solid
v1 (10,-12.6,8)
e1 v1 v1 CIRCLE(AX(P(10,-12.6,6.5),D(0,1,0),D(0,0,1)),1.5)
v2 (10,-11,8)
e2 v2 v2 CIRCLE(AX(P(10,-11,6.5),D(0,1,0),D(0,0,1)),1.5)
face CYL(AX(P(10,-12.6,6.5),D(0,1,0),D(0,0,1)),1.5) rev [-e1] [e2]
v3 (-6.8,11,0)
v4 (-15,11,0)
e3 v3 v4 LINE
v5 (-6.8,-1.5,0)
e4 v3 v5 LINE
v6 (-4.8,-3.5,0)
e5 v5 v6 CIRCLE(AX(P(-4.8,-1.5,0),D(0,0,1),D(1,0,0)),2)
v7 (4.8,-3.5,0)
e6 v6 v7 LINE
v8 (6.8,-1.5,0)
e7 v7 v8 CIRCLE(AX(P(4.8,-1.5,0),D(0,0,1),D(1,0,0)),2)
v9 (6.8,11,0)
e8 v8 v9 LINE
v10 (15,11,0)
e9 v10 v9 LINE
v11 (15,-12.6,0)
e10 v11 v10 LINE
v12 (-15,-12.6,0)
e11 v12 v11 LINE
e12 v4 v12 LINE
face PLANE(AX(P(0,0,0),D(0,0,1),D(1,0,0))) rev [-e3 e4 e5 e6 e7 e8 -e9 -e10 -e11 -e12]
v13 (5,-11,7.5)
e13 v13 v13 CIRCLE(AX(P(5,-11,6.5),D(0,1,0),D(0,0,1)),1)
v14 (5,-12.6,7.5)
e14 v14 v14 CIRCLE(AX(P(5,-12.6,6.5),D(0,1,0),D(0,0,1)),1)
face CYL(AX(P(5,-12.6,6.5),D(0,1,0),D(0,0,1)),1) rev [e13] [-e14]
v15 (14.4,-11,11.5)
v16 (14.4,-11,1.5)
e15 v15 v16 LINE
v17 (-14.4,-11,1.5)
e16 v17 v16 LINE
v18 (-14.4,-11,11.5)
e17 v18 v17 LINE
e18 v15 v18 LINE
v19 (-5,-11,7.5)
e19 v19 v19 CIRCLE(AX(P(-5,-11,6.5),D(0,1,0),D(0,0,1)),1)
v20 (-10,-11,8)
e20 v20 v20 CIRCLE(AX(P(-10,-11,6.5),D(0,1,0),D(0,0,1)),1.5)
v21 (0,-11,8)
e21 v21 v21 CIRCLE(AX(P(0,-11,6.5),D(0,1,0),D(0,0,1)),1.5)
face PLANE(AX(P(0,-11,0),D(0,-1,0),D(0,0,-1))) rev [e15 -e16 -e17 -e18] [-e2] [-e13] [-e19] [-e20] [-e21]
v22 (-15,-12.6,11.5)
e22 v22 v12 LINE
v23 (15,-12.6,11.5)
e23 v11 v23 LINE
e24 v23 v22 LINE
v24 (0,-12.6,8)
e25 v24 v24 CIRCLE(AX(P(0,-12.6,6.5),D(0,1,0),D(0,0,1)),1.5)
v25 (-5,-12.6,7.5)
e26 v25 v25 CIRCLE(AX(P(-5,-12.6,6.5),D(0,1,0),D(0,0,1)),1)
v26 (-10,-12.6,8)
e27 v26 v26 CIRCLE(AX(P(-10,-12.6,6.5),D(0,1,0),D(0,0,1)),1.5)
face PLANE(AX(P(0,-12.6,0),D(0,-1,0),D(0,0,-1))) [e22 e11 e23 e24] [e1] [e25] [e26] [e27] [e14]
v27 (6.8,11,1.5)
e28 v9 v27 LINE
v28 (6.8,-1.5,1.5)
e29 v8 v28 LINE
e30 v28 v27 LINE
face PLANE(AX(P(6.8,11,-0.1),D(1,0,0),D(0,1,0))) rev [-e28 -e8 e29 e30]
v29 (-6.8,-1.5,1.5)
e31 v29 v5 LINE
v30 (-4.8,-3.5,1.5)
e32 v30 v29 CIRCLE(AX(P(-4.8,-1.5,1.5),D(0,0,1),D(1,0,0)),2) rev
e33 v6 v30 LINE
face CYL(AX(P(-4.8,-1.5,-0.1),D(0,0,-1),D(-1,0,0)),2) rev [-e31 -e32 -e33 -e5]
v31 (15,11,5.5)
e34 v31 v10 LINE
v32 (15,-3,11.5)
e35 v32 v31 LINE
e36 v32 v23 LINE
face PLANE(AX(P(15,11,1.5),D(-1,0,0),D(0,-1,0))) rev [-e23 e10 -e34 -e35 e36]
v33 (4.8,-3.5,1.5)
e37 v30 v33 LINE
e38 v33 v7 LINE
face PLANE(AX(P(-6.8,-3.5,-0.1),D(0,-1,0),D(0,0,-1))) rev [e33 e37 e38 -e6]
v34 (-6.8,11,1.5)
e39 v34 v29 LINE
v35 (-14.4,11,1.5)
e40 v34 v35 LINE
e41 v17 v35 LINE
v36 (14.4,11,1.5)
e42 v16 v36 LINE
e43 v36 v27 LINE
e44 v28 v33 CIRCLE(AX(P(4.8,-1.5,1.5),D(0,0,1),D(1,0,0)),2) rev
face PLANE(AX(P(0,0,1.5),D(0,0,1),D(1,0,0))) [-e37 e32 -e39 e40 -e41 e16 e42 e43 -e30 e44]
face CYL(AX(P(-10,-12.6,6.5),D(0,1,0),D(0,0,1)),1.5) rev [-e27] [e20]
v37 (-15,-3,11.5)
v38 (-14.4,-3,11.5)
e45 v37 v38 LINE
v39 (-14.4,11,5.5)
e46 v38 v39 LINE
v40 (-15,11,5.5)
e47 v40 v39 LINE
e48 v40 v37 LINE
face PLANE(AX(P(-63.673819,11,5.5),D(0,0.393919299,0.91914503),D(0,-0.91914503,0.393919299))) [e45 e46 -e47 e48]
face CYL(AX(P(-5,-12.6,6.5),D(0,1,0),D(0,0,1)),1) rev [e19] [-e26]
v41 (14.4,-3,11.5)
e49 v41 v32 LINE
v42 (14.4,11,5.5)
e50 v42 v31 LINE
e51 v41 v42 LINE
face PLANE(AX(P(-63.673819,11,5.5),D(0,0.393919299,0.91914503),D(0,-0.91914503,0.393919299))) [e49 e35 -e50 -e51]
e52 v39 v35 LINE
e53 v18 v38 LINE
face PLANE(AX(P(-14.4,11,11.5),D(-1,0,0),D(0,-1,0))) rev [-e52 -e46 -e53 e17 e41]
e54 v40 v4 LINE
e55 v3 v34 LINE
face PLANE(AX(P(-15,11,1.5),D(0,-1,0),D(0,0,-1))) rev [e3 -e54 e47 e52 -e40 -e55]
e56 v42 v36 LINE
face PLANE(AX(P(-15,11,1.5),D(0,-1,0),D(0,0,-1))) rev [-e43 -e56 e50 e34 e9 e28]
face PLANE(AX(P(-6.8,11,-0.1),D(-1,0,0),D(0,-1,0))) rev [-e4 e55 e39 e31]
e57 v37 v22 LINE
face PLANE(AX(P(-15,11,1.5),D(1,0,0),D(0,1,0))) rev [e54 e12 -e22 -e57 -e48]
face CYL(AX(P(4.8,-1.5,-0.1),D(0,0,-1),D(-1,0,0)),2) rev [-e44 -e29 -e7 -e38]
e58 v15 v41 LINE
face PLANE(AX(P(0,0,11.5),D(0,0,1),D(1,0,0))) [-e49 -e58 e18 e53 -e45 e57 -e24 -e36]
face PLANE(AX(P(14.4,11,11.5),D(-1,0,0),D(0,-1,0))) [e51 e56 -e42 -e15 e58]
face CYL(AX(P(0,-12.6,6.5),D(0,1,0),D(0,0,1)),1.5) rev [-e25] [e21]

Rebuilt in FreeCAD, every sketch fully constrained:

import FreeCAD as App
import Part
import Sketcher
Q = App.Units.Quantity


def edges_at(feature, points):
    """Names of the edges that pass closest to the given points."""
    edges = feature.Shape.Edges
    near = lambda p: min(range(len(edges)), key=lambda i: edges[i].distToShape(Part.Vertex(*p))[0])
    return sorted({f"Edge{near(p) + 1}" for p in points})

doc = App.newDocument("Part")
body = doc.addObject("PartDesign::Body", "Body")

sketch1 = doc.addObject("Sketcher::SketchObject", "Sketch")
body.addObject(sketch1)
sketch1.AttachmentSupport = (doc.XY_Plane, [""])
sketch1.MapMode = "FlatFace"
sketch1.addGeometry([
    Part.LineSegment(App.Vector(-15, 11, 0), App.Vector(-15, -11, 0)),
    Part.LineSegment(App.Vector(-15, -11, 0), App.Vector(15, -11, 0)),
    Part.LineSegment(App.Vector(15, -11, 0), App.Vector(15, 11, 0)),
    Part.LineSegment(App.Vector(15, 11, 0), App.Vector(-15, 11, 0)),
], False)
sketch1.addConstraint([
    Sketcher.Constraint("Coincident", 0, 2, 1, 1),
    Sketcher.Constraint("Coincident", 1, 2, 2, 1),
    Sketcher.Constraint("Coincident", 2, 2, 3, 1),
    Sketcher.Constraint("Coincident", 3, 2, 0, 1),
    Sketcher.Constraint("Vertical", 0),
    Sketcher.Constraint("Horizontal", 1),
    Sketcher.Constraint("Vertical", 2),
    Sketcher.Constraint("Horizontal", 3),
    Sketcher.Constraint("Symmetric", 0, 2, 2, 2, -1, 1),
    Sketcher.Constraint("DistanceX", 1, 1, 1, 2, Q("30 mm")),
    Sketcher.Constraint("DistanceY", 0, 2, 0, 1, Q("22 mm")),
])
pad1 = doc.addObject("PartDesign::Pad", "Pad")
body.addObject(pad1)
pad1.Profile = sketch1
pad1.Length = 1.5

sketch2 = doc.addObject("Sketcher::SketchObject", "Sketch001")
body.addObject(sketch2)
sketch2.AttachmentSupport = (doc.XY_Plane, [""])
sketch2.MapMode = "FlatFace"
sketch2.AttachmentOffset = App.Placement(App.Vector(0, 0, 1.5), App.Rotation())
sketch2.addGeometry([
    Part.LineSegment(App.Vector(-15, 11, 0), App.Vector(-15, -11, 0)),
    Part.LineSegment(App.Vector(-15, -11, 0), App.Vector(-14.4, -11, 0)),
    Part.LineSegment(App.Vector(-14.4, -11, 0), App.Vector(-14.4, 11, 0)),
    Part.LineSegment(App.Vector(-14.4, 11, 0), App.Vector(-15, 11, 0)),
], False)
sketch2.addConstraint([
    Sketcher.Constraint("Coincident", 0, 2, 1, 1),
    Sketcher.Constraint("Coincident", 1, 2, 2, 1),
    Sketcher.Constraint("Coincident", 2, 2, 3, 1),
    Sketcher.Constraint("Coincident", 3, 2, 0, 1),
    Sketcher.Constraint("Vertical", 0),
    Sketcher.Constraint("Horizontal", 1),
    Sketcher.Constraint("Vertical", 2),
    Sketcher.Constraint("Horizontal", 3),
    Sketcher.Constraint("DistanceY", 0, 2, 0, 1, Q("22 mm")),
    Sketcher.Constraint("DistanceX", 1, 1, 1, 2, Q("0.6 mm")),
    Sketcher.Constraint("DistanceX", 0, 2, -1, 1, Q("15 mm")),
    Sketcher.Constraint("DistanceY", 0, 2, -1, 1, Q("11 mm")),
])
pad2 = doc.addObject("PartDesign::Pad", "Pad001")
body.addObject(pad2)
pad2.Profile = sketch2
pad2.Length = 10
doc.recompute()

mirrored = doc.addObject("PartDesign::Mirrored", "Mirrored")
body.addObject(mirrored)
mirrored.Originals = [pad2]
mirrored.MirrorPlane = (doc.YZ_Plane, [""])
body.Tip = mirrored

sketch3 = doc.addObject("Sketcher::SketchObject", "Sketch002")
body.addObject(sketch3)
sketch3.AttachmentSupport = (doc.YZ_Plane, [""])
sketch3.MapMode = "FlatFace"
sketch3.AttachmentOffset = App.Placement(App.Vector(0, 0, -15), App.Rotation())
sketch3.addGeometry([
    Part.LineSegment(App.Vector(62, -16, 0), App.Vector(11, 6, 0)),
    Part.LineSegment(App.Vector(11, 6, 0), App.Vector(-3, 12, 0)),
    Part.LineSegment(App.Vector(-3, 12, 0), App.Vector(-54, 33, 0)),
    Part.LineSegment(App.Vector(-54, 33, 0), App.Vector(-10, 136, 0)),
    Part.LineSegment(App.Vector(-10, 136, 0), App.Vector(106, 86, 0)),
    Part.LineSegment(App.Vector(106, 86, 0), App.Vector(62, -16, 0)),
], False)
sketch3.addConstraint([
    Sketcher.Constraint("Coincident", 0, 2, 1, 1),
    Sketcher.Constraint("Coincident", 1, 2, 2, 1),
    Sketcher.Constraint("Coincident", 2, 2, 3, 1),
    Sketcher.Constraint("Coincident", 3, 2, 4, 1),
    Sketcher.Constraint("Coincident", 4, 2, 5, 1),
    Sketcher.Constraint("Coincident", 5, 2, 0, 1),
    Sketcher.Constraint("Parallel", 0, 1),
    Sketcher.Constraint("Parallel", 1, 2),
    Sketcher.Constraint("Perpendicular", 2, 3),
    Sketcher.Constraint("Perpendicular", 3, 4),
    Sketcher.Constraint("Perpendicular", 4, 5),
    Sketcher.Constraint("Equal", 0, 2),
    Sketcher.Constraint("DistanceX", -1, 1, 0, 2, Q("11 mm")),
    Sketcher.Constraint("DistanceX", 1, 2, -1, 1, Q("3 mm")),
    Sketcher.Constraint("DistanceY", 0, 2, 1, 2, Q("6 mm")),
    Sketcher.Constraint("DistanceY", -1, 1, 0, 2, Q("5.5 mm")),
    Sketcher.Constraint("Distance", 4, Q("126.44558 mm")),
    Sketcher.Constraint("DistanceX", 3, 2, -1, 1, Q("10.301559 mm")),
])
pocket1 = doc.addObject("PartDesign::Pocket", "Pocket")
body.addObject(pocket1)
pocket1.Profile = sketch3
pocket1.Type = "ThroughAll"
pocket1.Midplane = True

sketch4 = doc.addObject("Sketcher::SketchObject", "Sketch003")
body.addObject(sketch4)
sketch4.AttachmentSupport = (doc.XZ_Plane, [""])
sketch4.MapMode = "FlatFace"
sketch4.AttachmentOffset = App.Placement(App.Vector(0, 0, 11), App.Rotation())
sketch4.addGeometry([
    Part.LineSegment(App.Vector(-15, 12, 0), App.Vector(-15, 0, 0)),
    Part.LineSegment(App.Vector(-15, 0, 0), App.Vector(15, 0, 0)),
    Part.LineSegment(App.Vector(15, 0, 0), App.Vector(15, 12, 0)),
    Part.LineSegment(App.Vector(15, 12, 0), App.Vector(-15, 12, 0)),
], False)
sketch4.addConstraint([
    Sketcher.Constraint("Coincident", 0, 2, 1, 1),
    Sketcher.Constraint("Coincident", 1, 2, 2, 1),
    Sketcher.Constraint("Coincident", 2, 2, 3, 1),
    Sketcher.Constraint("Coincident", 3, 2, 0, 1),
    Sketcher.Constraint("Vertical", 0),
    Sketcher.Constraint("Horizontal", 1),
    Sketcher.Constraint("Vertical", 2),
    Sketcher.Constraint("Horizontal", 3),
    Sketcher.Constraint("Symmetric", 0, 2, 1, 2, -1, 1),
    Sketcher.Constraint("DistanceX", 1, 1, 1, 2, Q("30 mm")),
    Sketcher.Constraint("DistanceY", 0, 2, 0, 1, Q("11.5 mm")),
])
pad3 = doc.addObject("PartDesign::Pad", "Pad002")
body.addObject(pad3)
pad3.Profile = sketch4
pad3.Length = 1.6

sketch5 = doc.addObject("Sketcher::SketchObject", "Sketch004")
body.addObject(sketch5)
sketch5.AttachmentSupport = (doc.XY_Plane, [""])
sketch5.MapMode = "FlatFace"
sketch5.AttachmentOffset = App.Placement(App.Vector(0, 0, 1.5), App.Rotation())
sketch5.addGeometry([
    Part.LineSegment(App.Vector(-7, 11, 0), App.Vector(-7, -4, 0)),
    Part.LineSegment(App.Vector(-7, -4, 0), App.Vector(7, -4, 0)),
    Part.LineSegment(App.Vector(7, -4, 0), App.Vector(7, 11, 0)),
    Part.LineSegment(App.Vector(7, 11, 0), App.Vector(-7, 11, 0)),
], False)
sketch5.addConstraint([
    Sketcher.Constraint("Coincident", 0, 2, 1, 1),
    Sketcher.Constraint("Coincident", 1, 2, 2, 1),
    Sketcher.Constraint("Coincident", 2, 2, 3, 1),
    Sketcher.Constraint("Coincident", 3, 2, 0, 1),
    Sketcher.Constraint("Vertical", 0),
    Sketcher.Constraint("Horizontal", 1),
    Sketcher.Constraint("Vertical", 2),
    Sketcher.Constraint("Horizontal", 3),
    Sketcher.Constraint("DistanceX", 1, 1, 1, 2, Q("13.6 mm")),
    Sketcher.Constraint("DistanceY", 0, 2, 0, 1, Q("14.5 mm")),
    Sketcher.Constraint("DistanceY", -1, 1, 2, 2, Q("11 mm")),
    Sketcher.Constraint("DistanceX", 0, 2, -1, 1, Q("6.8 mm")),
])
pocket2 = doc.addObject("PartDesign::Pocket", "Pocket001")
body.addObject(pocket2)
pocket2.Profile = sketch5
pocket2.Length = 1.6
doc.recompute()

fillet = doc.addObject("PartDesign::Fillet", "Fillet")
body.addObject(fillet)
fillet.Base = (pocket2, edges_at(pocket2, [(-6.8, -3.5, 0.75), (6.8, -3.5, 0.75)]))
fillet.Radius = 2

sketch6 = doc.addObject("Sketcher::SketchObject", "Sketch005")
body.addObject(sketch6)
sketch6.AttachmentSupport = (doc.XZ_Plane, [""])
sketch6.MapMode = "FlatFace"
sketch6.AttachmentOffset = App.Placement(App.Vector(0, 0, 11), App.Rotation())
sketch6.addGeometry([
    Part.Circle(App.Vector(0, 6.5, 0), App.Vector(0, 0, 1), 1.5),
    Part.Circle(App.Vector(-5, 6.5, 0), App.Vector(0, 0, 1), 1),
    Part.Circle(App.Vector(-10, 6.5, 0), App.Vector(0, 0, 1), 1.5),
    Part.Circle(App.Vector(5, 6.5, 0), App.Vector(0, 0, 1), 1),
    Part.Circle(App.Vector(10, 6.5, 0), App.Vector(0, 0, 1), 1.5),
], False)
sketch6.addConstraint([
    Sketcher.Constraint("Equal", 0, 2),
    Sketcher.Constraint("Equal", 1, 3),
    Sketcher.Constraint("Equal", 2, 4),
    Sketcher.Constraint("Symmetric", 1, 3, 3, 3, -2),
    Sketcher.Constraint("Symmetric", 2, 3, 4, 3, -2),
    Sketcher.Constraint("PointOnObject", 0, 3, -2),
    Sketcher.Constraint("Horizontal", 0, 3, 1, 3),
    Sketcher.Constraint("Horizontal", 1, 3, 2, 3),
    Sketcher.Constraint("Diameter", 0, Q("3 mm")),
    Sketcher.Constraint("Diameter", 1, Q("2 mm")),
    Sketcher.Constraint("DistanceX", 1, 3, -1, 1, Q("5 mm")),
    Sketcher.Constraint("DistanceX", 2, 3, -1, 1, Q("10 mm")),
    Sketcher.Constraint("DistanceY", -1, 1, 0, 3, Q("6.5 mm")),
])
pocket3 = doc.addObject("PartDesign::Pocket", "Pocket002")
body.addObject(pocket3)
pocket3.Profile = sketch6
pocket3.Length = 1.6
pocket3.Reversed = True

doc.recompute()
